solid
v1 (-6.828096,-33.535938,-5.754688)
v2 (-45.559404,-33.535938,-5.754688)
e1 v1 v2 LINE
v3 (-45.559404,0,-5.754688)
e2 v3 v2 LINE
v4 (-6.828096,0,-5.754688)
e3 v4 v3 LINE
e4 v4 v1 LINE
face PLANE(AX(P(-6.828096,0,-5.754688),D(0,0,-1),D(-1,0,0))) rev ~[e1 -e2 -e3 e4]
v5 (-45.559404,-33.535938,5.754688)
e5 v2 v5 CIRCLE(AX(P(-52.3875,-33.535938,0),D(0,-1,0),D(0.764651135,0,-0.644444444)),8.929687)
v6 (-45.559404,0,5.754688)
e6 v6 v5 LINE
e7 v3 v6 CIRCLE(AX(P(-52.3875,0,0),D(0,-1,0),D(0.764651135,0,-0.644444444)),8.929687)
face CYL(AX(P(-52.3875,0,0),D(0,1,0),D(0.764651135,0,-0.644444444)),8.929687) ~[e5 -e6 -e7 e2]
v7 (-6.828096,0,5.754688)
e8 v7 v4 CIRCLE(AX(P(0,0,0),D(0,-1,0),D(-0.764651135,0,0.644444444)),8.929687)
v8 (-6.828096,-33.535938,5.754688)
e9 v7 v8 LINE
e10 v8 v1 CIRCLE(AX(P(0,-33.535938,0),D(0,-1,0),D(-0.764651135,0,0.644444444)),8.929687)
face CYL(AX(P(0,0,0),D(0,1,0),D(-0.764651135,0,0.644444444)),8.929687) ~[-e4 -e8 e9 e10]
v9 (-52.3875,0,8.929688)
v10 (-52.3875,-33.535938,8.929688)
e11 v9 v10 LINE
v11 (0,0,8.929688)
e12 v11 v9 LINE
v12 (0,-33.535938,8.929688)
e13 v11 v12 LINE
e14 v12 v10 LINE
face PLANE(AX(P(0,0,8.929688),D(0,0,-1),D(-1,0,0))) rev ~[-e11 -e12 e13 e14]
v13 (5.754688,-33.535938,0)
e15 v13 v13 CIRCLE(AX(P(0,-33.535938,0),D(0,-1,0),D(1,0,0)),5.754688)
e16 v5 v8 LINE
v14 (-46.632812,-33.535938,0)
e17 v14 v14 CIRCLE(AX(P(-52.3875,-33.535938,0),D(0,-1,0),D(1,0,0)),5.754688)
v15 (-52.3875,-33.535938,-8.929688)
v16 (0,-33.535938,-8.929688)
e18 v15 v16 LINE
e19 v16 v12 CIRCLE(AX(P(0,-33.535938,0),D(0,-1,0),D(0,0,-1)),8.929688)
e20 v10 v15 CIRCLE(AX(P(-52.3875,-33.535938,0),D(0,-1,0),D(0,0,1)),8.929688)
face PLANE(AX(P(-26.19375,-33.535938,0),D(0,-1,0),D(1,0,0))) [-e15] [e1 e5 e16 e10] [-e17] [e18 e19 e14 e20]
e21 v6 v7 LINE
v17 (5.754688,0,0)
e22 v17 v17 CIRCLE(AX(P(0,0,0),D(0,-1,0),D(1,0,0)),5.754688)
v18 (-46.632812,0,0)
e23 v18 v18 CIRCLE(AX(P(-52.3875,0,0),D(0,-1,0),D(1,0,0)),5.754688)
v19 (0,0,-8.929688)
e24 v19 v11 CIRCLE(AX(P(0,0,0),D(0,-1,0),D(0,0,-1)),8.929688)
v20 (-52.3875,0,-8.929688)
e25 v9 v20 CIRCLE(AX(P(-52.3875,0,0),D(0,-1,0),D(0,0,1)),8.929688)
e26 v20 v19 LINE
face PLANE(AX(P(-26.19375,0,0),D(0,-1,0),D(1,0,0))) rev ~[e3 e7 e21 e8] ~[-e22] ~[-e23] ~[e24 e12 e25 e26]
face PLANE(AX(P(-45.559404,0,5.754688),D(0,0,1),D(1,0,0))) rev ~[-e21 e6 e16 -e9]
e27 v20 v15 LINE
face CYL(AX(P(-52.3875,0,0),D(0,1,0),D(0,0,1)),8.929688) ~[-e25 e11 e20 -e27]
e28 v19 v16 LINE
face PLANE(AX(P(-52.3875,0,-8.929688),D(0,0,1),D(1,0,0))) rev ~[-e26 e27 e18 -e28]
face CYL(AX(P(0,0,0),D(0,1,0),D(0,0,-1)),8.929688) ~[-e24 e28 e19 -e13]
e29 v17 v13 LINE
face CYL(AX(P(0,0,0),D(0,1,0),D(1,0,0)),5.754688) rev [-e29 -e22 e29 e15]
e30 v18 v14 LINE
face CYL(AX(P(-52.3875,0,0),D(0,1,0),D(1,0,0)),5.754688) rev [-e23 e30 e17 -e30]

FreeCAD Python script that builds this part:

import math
import FreeCAD as App
import Part
import Sketcher
Q = App.Units.Quantity

doc = App.newDocument("Part")
body = doc.addObject("PartDesign::Body", "Body")

sketch1 = body.newObject("Sketcher::SketchObject", "Sketch")
sketch1.AttachmentSupport = (doc.getObject("XZ_Plane"), [""])
sketch1.MapMode = "FlatFace"
sketch1.addGeometry([
    Part.LineSegment(App.Vector(0, 9, 0), App.Vector(-52, 9, 0)),
    Part.ArcOfCircle(Part.Circle(App.Vector(-52, 0, 0), App.Vector(0, 0, 1), 9), math.radians(90), math.radians(270)),
    Part.LineSegment(App.Vector(-52, -9, 0), App.Vector(0, -9, 0)),
    Part.ArcOfCircle(Part.Circle(App.Vector(0, 0, 0), App.Vector(0, 0, 1), 9), math.radians(-90), math.radians(90)),
    Part.Circle(App.Vector(-52, 0, 0), App.Vector(0, 0, 1), 6),
    Part.ArcOfCircle(Part.Circle(App.Vector(-52, 0, 0), App.Vector(0, 0, 1), 9), math.radians(-40), math.radians(40)),
    Part.LineSegment(App.Vector(-46, 6, 0), App.Vector(-7, 6, 0)),
    Part.ArcOfCircle(Part.Circle(App.Vector(0, 0, 0), App.Vector(0, 0, 1), 9), math.radians(140), math.radians(220)),
    Part.LineSegment(App.Vector(-7, -6, 0), App.Vector(-46, -6, 0)),
    Part.Circle(App.Vector(0, 0, 0), App.Vector(0, 0, 1), 6),
], False)
sketch1.addConstraint([
    Sketcher.Constraint("Tangent", 0, 2, 1, 1),
    Sketcher.Constraint("Tangent", 1, 2, 2, 1),
    Sketcher.Constraint("Tangent", 2, 2, 3, 1),
    Sketcher.Constraint("Tangent", 3, 2, 0, 1),
    Sketcher.Constraint("Coincident", 5, 2, 6, 1),
    Sketcher.Constraint("Coincident", 6, 2, 7, 1),
    Sketcher.Constraint("Coincident", 7, 2, 8, 1),
    Sketcher.Constraint("Coincident", 8, 2, 5, 1),
    Sketcher.Constraint("Horizontal", 0),
    Sketcher.Constraint("Horizontal", 2),
    Sketcher.Constraint("Horizontal", 6),
    Sketcher.Constraint("Horizontal", 8),
    Sketcher.Constraint("Coincident", 3, 3, -1, 1),
    Sketcher.Constraint("Coincident", 7, 3, -1, 1),
    Sketcher.Constraint("Coincident", 9, 3, -1, 1),
    Sketcher.Constraint("Coincident", 4, 3, 1, 3),
    Sketcher.Constraint("Coincident", 5, 3, 1, 3),
    Sketcher.Constraint("Equal", 3, 5),
    Sketcher.Constraint("Equal", 5, 7),
    Sketcher.Constraint("Equal", 4, 9),
    Sketcher.Constraint("Vertical", 6, 2, 7, 2),
    Sketcher.Constraint("Diameter", 4, Q("0.453125 in")),
    Sketcher.Constraint("DistanceX", 0, 2, 0, 1, Q("2.0625 in")),
    Sketcher.Constraint("DistanceY", 1, 2, 0, 2, Q("0.703125 in")),
    Sketcher.Constraint("DistanceY", 5, 2, 0, 2, Q("0.125 in")),
])
pad1 = body.newObject("PartDesign::Pad", "Pad")
pad1.Profile = sketch1
pad1.Length = 33.535938

doc.recompute()
